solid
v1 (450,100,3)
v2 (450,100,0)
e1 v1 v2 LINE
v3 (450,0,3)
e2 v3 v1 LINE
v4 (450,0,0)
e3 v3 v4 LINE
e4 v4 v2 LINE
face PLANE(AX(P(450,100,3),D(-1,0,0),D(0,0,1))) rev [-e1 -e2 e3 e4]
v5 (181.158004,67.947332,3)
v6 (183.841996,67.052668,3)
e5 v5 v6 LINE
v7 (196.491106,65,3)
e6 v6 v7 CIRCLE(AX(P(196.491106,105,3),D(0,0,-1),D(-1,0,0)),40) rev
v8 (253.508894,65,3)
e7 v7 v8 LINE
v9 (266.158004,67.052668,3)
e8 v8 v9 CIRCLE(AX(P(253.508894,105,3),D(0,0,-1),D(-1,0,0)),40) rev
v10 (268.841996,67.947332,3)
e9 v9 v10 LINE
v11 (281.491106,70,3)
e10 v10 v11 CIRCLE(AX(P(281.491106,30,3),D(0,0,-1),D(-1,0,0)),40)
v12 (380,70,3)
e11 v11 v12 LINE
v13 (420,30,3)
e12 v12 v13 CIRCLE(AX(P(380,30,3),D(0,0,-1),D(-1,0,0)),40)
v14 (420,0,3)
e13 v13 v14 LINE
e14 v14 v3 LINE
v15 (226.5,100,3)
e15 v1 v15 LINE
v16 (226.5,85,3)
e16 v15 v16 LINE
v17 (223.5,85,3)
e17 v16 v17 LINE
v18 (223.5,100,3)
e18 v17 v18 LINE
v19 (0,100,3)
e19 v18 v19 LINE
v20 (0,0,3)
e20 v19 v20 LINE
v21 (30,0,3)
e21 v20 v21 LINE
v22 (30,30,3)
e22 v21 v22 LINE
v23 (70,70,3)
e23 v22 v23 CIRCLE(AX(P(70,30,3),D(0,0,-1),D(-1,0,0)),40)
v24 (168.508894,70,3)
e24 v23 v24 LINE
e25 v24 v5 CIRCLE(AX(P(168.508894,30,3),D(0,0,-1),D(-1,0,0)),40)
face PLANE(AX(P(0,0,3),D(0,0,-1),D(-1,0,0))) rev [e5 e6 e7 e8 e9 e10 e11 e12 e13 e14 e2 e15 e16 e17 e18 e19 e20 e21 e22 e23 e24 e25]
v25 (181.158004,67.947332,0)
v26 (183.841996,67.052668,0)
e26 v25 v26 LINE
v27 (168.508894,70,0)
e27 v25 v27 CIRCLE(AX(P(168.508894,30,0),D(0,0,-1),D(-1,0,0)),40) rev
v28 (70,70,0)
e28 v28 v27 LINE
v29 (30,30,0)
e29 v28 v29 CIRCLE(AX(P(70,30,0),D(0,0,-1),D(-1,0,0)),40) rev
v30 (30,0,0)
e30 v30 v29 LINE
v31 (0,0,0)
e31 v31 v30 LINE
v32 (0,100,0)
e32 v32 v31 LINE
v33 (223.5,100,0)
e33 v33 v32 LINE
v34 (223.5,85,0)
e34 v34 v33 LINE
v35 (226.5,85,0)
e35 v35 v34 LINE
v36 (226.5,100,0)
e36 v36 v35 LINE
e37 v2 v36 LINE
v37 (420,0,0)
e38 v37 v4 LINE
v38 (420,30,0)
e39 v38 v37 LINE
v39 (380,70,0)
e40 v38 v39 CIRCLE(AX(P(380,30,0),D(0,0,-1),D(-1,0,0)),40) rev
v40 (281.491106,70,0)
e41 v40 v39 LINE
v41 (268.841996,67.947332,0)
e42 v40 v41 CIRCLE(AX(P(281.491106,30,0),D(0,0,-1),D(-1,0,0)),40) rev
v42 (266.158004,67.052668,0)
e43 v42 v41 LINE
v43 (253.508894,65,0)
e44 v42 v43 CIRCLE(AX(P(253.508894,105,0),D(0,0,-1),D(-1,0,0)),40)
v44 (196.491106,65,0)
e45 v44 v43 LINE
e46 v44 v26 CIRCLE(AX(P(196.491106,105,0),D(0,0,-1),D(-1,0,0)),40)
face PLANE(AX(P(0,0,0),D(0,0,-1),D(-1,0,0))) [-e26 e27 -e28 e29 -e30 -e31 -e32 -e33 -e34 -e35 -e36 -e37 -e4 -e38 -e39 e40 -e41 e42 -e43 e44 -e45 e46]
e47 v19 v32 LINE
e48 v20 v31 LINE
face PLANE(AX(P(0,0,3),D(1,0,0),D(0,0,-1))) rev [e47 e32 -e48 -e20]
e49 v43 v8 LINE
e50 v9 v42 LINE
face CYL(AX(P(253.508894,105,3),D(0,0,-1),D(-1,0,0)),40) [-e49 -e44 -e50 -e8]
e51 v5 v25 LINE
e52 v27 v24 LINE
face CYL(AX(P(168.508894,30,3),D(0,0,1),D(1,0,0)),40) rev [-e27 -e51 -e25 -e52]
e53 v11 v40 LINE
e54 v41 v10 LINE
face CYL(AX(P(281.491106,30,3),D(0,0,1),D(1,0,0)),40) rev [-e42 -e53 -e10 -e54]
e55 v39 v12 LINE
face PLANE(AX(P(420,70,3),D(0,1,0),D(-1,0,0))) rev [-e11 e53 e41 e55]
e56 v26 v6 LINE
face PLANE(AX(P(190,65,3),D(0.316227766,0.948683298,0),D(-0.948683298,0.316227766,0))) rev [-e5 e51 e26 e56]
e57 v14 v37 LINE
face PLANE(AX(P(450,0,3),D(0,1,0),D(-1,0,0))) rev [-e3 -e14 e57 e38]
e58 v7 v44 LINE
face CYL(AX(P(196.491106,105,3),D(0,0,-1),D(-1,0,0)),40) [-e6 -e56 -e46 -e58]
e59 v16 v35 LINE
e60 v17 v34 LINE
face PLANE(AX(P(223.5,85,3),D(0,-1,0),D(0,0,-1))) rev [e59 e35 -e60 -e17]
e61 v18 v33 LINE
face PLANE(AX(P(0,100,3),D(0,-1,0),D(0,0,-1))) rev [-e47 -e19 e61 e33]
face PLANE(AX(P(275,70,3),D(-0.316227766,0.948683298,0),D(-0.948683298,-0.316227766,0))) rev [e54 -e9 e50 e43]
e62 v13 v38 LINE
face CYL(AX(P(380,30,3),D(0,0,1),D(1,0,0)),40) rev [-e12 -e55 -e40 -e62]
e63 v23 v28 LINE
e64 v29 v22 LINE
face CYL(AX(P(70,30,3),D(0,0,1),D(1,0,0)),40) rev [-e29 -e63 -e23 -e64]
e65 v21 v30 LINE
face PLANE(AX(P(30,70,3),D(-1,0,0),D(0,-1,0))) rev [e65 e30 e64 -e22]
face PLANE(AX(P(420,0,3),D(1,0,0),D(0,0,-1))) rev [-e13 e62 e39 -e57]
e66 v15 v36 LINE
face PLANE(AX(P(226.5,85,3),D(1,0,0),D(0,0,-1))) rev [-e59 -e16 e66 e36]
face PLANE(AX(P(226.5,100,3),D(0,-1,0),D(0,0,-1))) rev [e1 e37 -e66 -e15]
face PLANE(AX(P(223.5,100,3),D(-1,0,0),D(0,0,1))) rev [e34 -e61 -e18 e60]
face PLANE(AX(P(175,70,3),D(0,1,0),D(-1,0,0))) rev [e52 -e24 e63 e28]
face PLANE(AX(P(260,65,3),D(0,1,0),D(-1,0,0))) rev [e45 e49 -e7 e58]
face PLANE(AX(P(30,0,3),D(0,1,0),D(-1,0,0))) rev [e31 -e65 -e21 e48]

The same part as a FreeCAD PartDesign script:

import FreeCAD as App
import Part
import Sketcher
from FreeCAD import Vector


def edges_at(feature, points):
    """Names of the edges that pass closest to the given points."""
    edges = feature.Shape.Edges
    near = lambda p: min(range(len(edges)), key=lambda i: edges[i].distToShape(Part.Vertex(*p))[0])
    return sorted({f"Edge{near(p) + 1}" for p in points})

doc = App.newDocument("Part")
body = doc.addObject("PartDesign::Body", "Body")

# Sketch on XY plane
sketch1 = body.newObject("Sketcher::SketchObject", "Sketch")
sketch1.AttachmentSupport = (doc.getObject("XY_Plane"), [""])
sketch1.MapMode = "FlatFace"
sketch1.addGeometry([
    Part.LineSegment(Vector(0, 100, 0), Vector(0, 0, 0)),  # 0
    Part.LineSegment(Vector(0, 0, 0), Vector(30, 0, 0)),  # 1
    Part.LineSegment(Vector(30, 0, 0), Vector(30, 70, 0)),  # 2
    Part.LineSegment(Vector(30, 70, 0), Vector(175, 70, 0)),  # 3
    Part.LineSegment(Vector(175, 70, 0), Vector(190, 65, 0)),  # 4
    Part.LineSegment(Vector(190, 65, 0), Vector(260, 65, 0)),  # 5
    Part.LineSegment(Vector(260, 65, 0), Vector(275, 70, 0)),  # 6
    Part.LineSegment(Vector(275, 70, 0), Vector(420, 70, 0)),  # 7
    Part.LineSegment(Vector(420, 70, 0), Vector(420, 0, 0)),  # 8
    Part.LineSegment(Vector(420, 0, 0), Vector(450, 0, 0)),  # 9
    Part.LineSegment(Vector(450, 0, 0), Vector(450, 100, 0)),  # 10
    Part.LineSegment(Vector(450, 100, 0), Vector(226.5, 100, 0)),  # 11
    Part.LineSegment(Vector(226.5, 100, 0), Vector(226.5, 85, 0)),  # 12
    Part.LineSegment(Vector(226.5, 85, 0), Vector(223.5, 85, 0)),  # 13
    Part.LineSegment(Vector(223.5, 85, 0), Vector(223.5, 100, 0)),  # 14
    Part.LineSegment(Vector(223.5, 100, 0), Vector(0, 100, 0)),  # 15
], False)
sketch1.addConstraint([
    Sketcher.Constraint("Coincident", 0, 2, 1, 1),
    Sketcher.Constraint("Coincident", 1, 2, 2, 1),
    Sketcher.Constraint("Coincident", 2, 2, 3, 1),
    Sketcher.Constraint("Coincident", 3, 2, 4, 1),
    Sketcher.Constraint("Coincident", 4, 2, 5, 1),
    Sketcher.Constraint("Coincident", 5, 2, 6, 1),
    Sketcher.Constraint("Coincident", 6, 2, 7, 1),
    Sketcher.Constraint("Coincident", 7, 2, 8, 1),
    Sketcher.Constraint("Coincident", 8, 2, 9, 1),
    Sketcher.Constraint("Coincident", 9, 2, 10, 1),
    Sketcher.Constraint("Coincident", 10, 2, 11, 1),
    Sketcher.Constraint("Coincident", 11, 2, 12, 1),
    Sketcher.Constraint("Coincident", 12, 2, 13, 1),
    Sketcher.Constraint("Coincident", 13, 2, 14, 1),
    Sketcher.Constraint("Coincident", 14, 2, 15, 1),
    Sketcher.Constraint("Coincident", 15, 2, 0, 1),
    Sketcher.Constraint("Vertical", 0),
    Sketcher.Constraint("Horizontal", 1),
    Sketcher.Constraint("Vertical", 2),
    Sketcher.Constraint("Horizontal", 3),
    Sketcher.Constraint("Horizontal", 5),
    Sketcher.Constraint("Horizontal", 7),
    Sketcher.Constraint("Vertical", 8),
    Sketcher.Constraint("Horizontal", 9),
    Sketcher.Constraint("Vertical", 10),
    Sketcher.Constraint("Horizontal", 11),
    Sketcher.Constraint("Vertical", 12),
    Sketcher.Constraint("Horizontal", 13),
    Sketcher.Constraint("Vertical", 14),
    Sketcher.Constraint("Horizontal", 15),
    Sketcher.Constraint("Coincident", 0, 2, -1, 1),
    Sketcher.Constraint("PointOnObject", 8, 2, -1),
    Sketcher.Constraint("Horizontal", 3, 2, 6, 2),
    Sketcher.Constraint("Horizontal", 11, 2, 14, 2),
    Sketcher.Constraint("Equal", 3, 7),
    Sketcher.Constraint("Equal", 1, 9),
    Sketcher.Constraint("Equal", 11, 15),
    Sketcher.Constraint("Equal", 5, 2),
    Sketcher.Constraint("Equal", 4, 6),
    Sketcher.Constraint("DistanceX", 1, 1, 1, 2, 30.0),
    Sketcher.Constraint("DistanceX", 3, 1, 3, 2, 145.0),
    Sketcher.Constraint("DistanceX", 5, 1, 5, 2, 70.0),
    Sketcher.Constraint("DistanceX", 13, 2, 13, 1, 3.0),
    Sketcher.Constraint("DistanceY", 0, 2, 0, 1, 100.0),
    Sketcher.Constraint("DistanceY", 12, 2, 12, 1, 15.0),
    Sketcher.Constraint("DistanceX", 11, 2, 11, 1, 223.5),
    Sketcher.Constraint("DistanceY", -1, 1, 4, 2, 65.0),
])
pad1 = body.newObject("PartDesign::Pad", "Pad")
pad1.Profile = sketch1
pad1.Length = 3
doc.recompute()

fillet = body.newObject("PartDesign::Fillet", "Fillet")
fillet.Base = (pad1, edges_at(pad1, [
    (420, 70, 1.5),
    (275, 70, 1.5),
    (260, 65, 1.5),
    (190, 65, 1.5),
    (175, 70, 1.5),
    (30, 70, 1.5),
]))
fillet.Radius = 40

doc.recompute()
